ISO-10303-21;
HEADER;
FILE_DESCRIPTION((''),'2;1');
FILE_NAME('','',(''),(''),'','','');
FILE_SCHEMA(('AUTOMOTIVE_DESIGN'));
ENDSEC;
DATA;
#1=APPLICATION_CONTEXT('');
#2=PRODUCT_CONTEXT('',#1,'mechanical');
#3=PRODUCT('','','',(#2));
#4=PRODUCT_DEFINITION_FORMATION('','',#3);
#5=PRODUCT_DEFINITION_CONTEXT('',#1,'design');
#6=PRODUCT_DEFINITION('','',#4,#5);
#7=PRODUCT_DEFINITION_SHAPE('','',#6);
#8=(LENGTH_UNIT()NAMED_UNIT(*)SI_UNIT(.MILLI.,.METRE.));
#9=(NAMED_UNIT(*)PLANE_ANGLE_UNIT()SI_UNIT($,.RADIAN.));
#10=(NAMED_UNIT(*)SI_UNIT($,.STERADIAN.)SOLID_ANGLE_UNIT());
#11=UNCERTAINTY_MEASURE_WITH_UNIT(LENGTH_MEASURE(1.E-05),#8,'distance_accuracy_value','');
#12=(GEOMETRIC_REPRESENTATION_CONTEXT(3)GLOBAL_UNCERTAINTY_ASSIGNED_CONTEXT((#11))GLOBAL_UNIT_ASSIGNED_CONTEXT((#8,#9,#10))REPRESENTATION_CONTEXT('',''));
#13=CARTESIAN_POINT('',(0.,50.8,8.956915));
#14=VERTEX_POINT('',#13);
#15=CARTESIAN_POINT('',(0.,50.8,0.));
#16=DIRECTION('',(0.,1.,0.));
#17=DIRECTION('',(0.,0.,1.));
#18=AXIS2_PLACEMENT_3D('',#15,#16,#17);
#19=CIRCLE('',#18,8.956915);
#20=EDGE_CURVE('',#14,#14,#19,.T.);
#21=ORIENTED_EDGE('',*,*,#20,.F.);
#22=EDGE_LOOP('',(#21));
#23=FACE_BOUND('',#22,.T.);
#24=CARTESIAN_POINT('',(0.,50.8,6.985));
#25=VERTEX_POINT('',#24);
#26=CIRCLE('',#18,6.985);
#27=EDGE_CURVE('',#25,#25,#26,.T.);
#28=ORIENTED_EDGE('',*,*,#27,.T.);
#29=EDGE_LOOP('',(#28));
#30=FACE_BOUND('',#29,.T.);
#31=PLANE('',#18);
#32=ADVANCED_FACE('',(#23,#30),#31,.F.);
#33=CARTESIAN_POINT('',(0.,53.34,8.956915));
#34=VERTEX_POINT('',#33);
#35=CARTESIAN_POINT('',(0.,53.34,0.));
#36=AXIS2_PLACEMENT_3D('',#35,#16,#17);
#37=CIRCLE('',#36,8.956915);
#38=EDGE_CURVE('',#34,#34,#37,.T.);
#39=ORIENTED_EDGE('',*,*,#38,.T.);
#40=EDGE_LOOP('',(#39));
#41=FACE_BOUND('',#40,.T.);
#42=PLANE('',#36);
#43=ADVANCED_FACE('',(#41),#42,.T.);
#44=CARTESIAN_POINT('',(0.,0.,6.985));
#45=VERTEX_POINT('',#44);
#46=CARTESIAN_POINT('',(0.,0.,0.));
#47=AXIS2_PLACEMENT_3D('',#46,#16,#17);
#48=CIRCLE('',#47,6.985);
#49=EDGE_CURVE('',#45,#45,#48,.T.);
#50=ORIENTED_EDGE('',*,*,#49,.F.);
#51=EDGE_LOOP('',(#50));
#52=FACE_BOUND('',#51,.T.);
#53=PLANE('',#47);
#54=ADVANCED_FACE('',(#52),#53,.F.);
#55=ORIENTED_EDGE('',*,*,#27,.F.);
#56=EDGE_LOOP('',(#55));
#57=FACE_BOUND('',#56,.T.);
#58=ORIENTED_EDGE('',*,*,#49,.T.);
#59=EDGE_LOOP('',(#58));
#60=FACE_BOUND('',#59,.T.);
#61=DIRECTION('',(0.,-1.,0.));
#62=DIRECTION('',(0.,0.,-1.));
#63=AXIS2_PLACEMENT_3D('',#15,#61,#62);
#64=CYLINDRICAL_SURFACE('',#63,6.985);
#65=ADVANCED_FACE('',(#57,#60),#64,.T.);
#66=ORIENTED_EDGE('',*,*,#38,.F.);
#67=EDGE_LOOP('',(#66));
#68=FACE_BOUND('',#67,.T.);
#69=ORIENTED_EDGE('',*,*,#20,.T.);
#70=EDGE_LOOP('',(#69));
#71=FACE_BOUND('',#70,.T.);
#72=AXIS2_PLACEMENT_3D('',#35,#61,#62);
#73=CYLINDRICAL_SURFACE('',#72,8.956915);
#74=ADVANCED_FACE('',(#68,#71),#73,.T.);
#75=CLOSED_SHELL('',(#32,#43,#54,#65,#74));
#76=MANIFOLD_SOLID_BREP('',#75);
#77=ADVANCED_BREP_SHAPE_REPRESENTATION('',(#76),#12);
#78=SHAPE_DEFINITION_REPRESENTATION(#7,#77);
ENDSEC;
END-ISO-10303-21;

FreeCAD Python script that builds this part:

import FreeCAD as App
import Part
import Sketcher
Q = App.Units.Quantity

doc = App.newDocument("Part")
params = doc.addObject("Spreadsheet::Sheet", "Params")
for row, (alias, value) in enumerate([
    ("sketch1_diameter", "0.55 in"),
    ("pad1_length", "2 in"),
    ("pad2_length", "0.1 in"),
], start=1):
    params.set(f"A{row}", alias)
    params.set(f"B{row}", "=" + value)
    params.setAlias(f"B{row}", alias)

body = doc.addObject("PartDesign::Body", "Body")

# Sketch on XZ plane
sketch1 = body.newObject("Sketcher::SketchObject", "Sketch")
sketch1.AttachmentSupport = (doc.getObject("XZ_Plane"), [""])
sketch1.MapMode = "FlatFace"
sketch1.addGeometry(Part.Circle(App.Vector(0, 0, 0), App.Vector(0, 0, 1), 6.985), False)
sketch1.addConstraint([
    Sketcher.Constraint("Coincident", 0, 3, -1, 1),
    Sketcher.Constraint("Diameter", 0, Q("0.55 in")),
])
sketch1.setExpression("Constraints[1]", "Params.sketch1_diameter")
pad1 = body.newObject("PartDesign::Pad", "Pad")
pad1.Profile = sketch1
pad1.setExpression("Length", "Params.pad1_length")
pad1.Reversed = True

# Sketch on XZ plane
sketch2 = body.newObject("Sketcher::SketchObject", "Sketch001")
sketch2.AttachmentSupport = (doc.getObject("XZ_Plane"), [""])
sketch2.MapMode = "FlatFace"
sketch2.AttachmentOffset = App.Placement(App.Vector(0, 0, -2 * 25.4), App.Rotation())
sketch2.addGeometry(Part.Circle(App.Vector(0, 0, 0), App.Vector(0, 0, 1), 8.956915), False)
sketch2.addConstraint([
    Sketcher.Constraint("Coincident", 0, 3, -1, 1),
    Sketcher.Constraint("Diameter", 0, Q("17.913829 mm")),
])
pad2 = body.newObject("PartDesign::Pad", "Pad001")
pad2.Profile = sketch2
pad2.setExpression("Length", "Params.pad2_length")
pad2.Reversed = True

doc.recompute()
